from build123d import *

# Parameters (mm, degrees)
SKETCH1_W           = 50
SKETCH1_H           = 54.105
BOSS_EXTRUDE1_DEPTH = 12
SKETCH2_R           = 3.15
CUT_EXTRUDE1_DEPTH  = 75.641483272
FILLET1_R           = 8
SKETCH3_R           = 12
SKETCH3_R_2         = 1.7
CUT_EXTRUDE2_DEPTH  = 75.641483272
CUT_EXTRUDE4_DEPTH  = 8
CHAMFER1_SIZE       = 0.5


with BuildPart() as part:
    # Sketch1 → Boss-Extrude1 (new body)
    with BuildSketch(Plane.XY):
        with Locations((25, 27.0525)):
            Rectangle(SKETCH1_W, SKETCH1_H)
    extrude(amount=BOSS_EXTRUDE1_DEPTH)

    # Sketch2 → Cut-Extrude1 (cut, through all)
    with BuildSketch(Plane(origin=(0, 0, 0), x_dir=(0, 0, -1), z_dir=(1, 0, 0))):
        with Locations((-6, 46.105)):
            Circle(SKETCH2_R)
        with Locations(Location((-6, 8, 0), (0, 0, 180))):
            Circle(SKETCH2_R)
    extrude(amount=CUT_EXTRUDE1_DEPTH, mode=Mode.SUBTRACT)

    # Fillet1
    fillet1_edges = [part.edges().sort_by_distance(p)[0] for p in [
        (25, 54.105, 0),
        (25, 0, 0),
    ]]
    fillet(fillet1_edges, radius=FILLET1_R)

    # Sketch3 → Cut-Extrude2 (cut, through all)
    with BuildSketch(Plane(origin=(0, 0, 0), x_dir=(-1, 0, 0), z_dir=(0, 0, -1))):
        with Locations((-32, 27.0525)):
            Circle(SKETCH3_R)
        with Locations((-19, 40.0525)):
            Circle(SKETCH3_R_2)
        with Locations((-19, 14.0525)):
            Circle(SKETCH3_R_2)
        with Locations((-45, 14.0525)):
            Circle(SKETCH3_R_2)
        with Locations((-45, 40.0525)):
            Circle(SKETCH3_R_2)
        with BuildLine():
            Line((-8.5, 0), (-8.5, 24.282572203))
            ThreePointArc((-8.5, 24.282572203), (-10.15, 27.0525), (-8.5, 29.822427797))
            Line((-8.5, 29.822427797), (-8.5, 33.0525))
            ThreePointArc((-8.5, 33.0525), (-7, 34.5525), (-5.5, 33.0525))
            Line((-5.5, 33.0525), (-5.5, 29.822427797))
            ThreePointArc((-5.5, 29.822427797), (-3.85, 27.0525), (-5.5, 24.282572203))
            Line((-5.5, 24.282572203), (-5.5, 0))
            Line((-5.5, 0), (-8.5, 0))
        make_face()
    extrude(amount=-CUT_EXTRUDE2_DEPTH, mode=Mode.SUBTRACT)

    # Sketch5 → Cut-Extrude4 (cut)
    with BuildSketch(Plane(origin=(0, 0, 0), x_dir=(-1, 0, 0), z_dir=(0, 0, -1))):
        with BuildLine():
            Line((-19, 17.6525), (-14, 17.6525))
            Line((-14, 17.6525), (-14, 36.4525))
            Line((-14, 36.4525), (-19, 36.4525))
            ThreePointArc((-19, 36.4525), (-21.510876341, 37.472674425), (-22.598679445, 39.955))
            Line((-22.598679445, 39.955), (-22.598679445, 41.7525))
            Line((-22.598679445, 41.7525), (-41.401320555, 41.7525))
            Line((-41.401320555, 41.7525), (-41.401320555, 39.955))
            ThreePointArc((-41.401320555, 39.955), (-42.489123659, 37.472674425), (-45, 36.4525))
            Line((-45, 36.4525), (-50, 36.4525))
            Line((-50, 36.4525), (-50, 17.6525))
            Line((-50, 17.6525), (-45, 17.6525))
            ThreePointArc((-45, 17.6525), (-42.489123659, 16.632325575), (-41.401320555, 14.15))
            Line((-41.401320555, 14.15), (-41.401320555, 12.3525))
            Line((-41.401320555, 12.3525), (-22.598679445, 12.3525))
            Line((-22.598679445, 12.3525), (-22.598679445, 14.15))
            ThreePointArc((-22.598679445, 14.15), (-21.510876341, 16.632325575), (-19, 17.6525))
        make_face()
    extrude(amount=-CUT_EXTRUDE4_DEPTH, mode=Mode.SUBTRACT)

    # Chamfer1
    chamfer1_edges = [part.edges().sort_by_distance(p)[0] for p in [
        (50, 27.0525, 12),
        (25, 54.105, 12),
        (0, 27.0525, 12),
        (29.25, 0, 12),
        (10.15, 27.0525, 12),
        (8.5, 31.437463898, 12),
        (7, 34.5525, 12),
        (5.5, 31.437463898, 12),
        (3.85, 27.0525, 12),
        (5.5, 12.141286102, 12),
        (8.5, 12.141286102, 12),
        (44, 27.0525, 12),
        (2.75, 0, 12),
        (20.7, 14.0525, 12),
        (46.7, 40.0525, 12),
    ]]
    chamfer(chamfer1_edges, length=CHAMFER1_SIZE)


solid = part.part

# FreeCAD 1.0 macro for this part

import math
import FreeCAD as App
import Part
import Sketcher
Q = App.Units.Quantity


def edges_at(feature, points):
    """Names of the edges that pass closest to the given points."""
    edges = feature.Shape.Edges
    near = lambda p: min(range(len(edges)), key=lambda i: edges[i].distToShape(Part.Vertex(*p))[0])
    return sorted({f"Edge{near(p) + 1}" for p in points})

doc = App.newDocument("Part")
params = doc.addObject("Spreadsheet::Sheet", "Params")
for row, (alias, value) in enumerate([
    ("sketch1_width", "50 mm"),
    ("pad1_length", "12 mm"),
    ("sketch2_diameter", "6.3 mm"),
    ("fillet_radius", "8 mm"),
    ("sketch3_diameter", "24 mm"),
    ("sketch3_diameter2", "3.4 mm"),
    ("sketch3_radius", "1.5 mm"),
    ("sketch3_radius2", "3.15 mm"),
    ("sketch4_radius", "3.6 mm"),
    ("sketch4_width", "5 mm"),
    ("sketch4_height", "18.8 mm"),
    ("pocket3_length", "8 mm"),
    ("chamfer_size", "0.5 mm"),
], start=1):
    params.set(f"A{row}", alias)
    params.set(f"B{row}", "=" + value)
    params.setAlias(f"B{row}", alias)

body = doc.addObject("PartDesign::Body", "Body")

sketch1 = body.newObject("Sketcher::SketchObject", "Sketch")
sketch1.AttachmentSupport = (doc.getObject("XY_Plane"), [""])
sketch1.MapMode = "FlatFace"
sketch1.addGeometry([
    Part.LineSegment(App.Vector(0, 54.105, 0), App.Vector(0, 0, 0)),
    Part.LineSegment(App.Vector(0, 0, 0), App.Vector(50, 0, 0)),
    Part.LineSegment(App.Vector(50, 0, 0), App.Vector(50, 54.105, 0)),
    Part.LineSegment(App.Vector(50, 54.105, 0), App.Vector(0, 54.105, 0)),
], False)
sketch1.addConstraint([
    Sketcher.Constraint("Coincident", 0, 2, 1, 1),
    Sketcher.Constraint("Coincident", 1, 2, 2, 1),
    Sketcher.Constraint("Coincident", 2, 2, 3, 1),
    Sketcher.Constraint("Coincident", 3, 2, 0, 1),
    Sketcher.Constraint("Vertical", 0),
    Sketcher.Constraint("Horizontal", 1),
    Sketcher.Constraint("Vertical", 2),
    Sketcher.Constraint("Horizontal", 3),
    Sketcher.Constraint("Coincident", 0, 2, -1, 1),
    Sketcher.Constraint("DistanceX", 1, 1, 1, 2, Q("50 mm")),
    Sketcher.Constraint("DistanceY", 0, 2, 0, 1, Q("54.105 mm")),
])
sketch1.setExpression("Constraints[9]", "Params.sketch1_width")
pad1 = body.newObject("PartDesign::Pad", "Pad")
pad1.Profile = sketch1
pad1.setExpression("Length", "Params.pad1_length")

sketch2 = body.newObject("Sketcher::SketchObject", "Sketch001")
sketch2.AttachmentSupport = (doc.getObject("YZ_Plane"), [""])
sketch2.MapMode = "FlatFace"
sketch2.addGeometry([
    Part.Circle(App.Vector(46.105, 6, 0), App.Vector(0, 0, 1), 3.15),
    Part.Circle(App.Vector(8, 6, 0), App.Vector(0, 0, 1), 3.15),
], False)
sketch2.addConstraint([
    Sketcher.Constraint("Equal", 0, 1),
    Sketcher.Constraint("Horizontal", 0, 3, 1, 3),
    Sketcher.Constraint("Diameter", 0, Q("6.3 mm")),
    Sketcher.Constraint("DistanceY", -1, 1, 0, 3, Q("6 mm")),
    Sketcher.Constraint("DistanceX", -1, 1, 1, 3, Q("8 mm")),
    Sketcher.Constraint("DistanceX", -1, 1, 0, 3, Q("46.105 mm")),
])
sketch2.setExpression("Constraints[2]", "Params.sketch2_diameter")
pocket1 = body.newObject("PartDesign::Pocket", "Pocket")
pocket1.Profile = sketch2
pocket1.Type = "ThroughAll"
pocket1.Reversed = True
doc.recompute()

fillet = body.newObject("PartDesign::Fillet", "Fillet")
fillet.Base = (pocket1, edges_at(pocket1, [(25, 54.105, 0), (25, 0, 0)]))
fillet.setExpression("Radius", "Params.fillet_radius")

sketch3 = body.newObject("Sketcher::SketchObject", "Sketch002")
sketch3.AttachmentSupport = (doc.getObject("XY_Plane"), [""])
sketch3.MapMode = "FlatFace"
sketch3.addGeometry([
    Part.Circle(App.Vector(32, 27.0525, 0), App.Vector(0, 0, 1), 12),
    Part.Circle(App.Vector(19, 40.0525, 0), App.Vector(0, 0, 1), 1.7),
    Part.Circle(App.Vector(19, 14.0525, 0), App.Vector(0, 0, 1), 1.7),
    Part.Circle(App.Vector(45, 14.0525, 0), App.Vector(0, 0, 1), 1.7),
    Part.Circle(App.Vector(45, 40.0525, 0), App.Vector(0, 0, 1), 1.7),
    Part.LineSegment(App.Vector(8.5, 24.282572, 0), App.Vector(8.5, 0, 0)),
    Part.LineSegment(App.Vector(8.5, 0, 0), App.Vector(5.5, 0, 0)),
    Part.LineSegment(App.Vector(5.5, 0, 0), App.Vector(5.5, 24.282572, 0)),
    Part.ArcOfCircle(Part.Circle(App.Vector(7, 27.0525, 0), App.Vector(0, 0, 1), 3.15), math.radians(118.43689), math.radians(241.56311)),
    Part.LineSegment(App.Vector(5.5, 29.822428, 0), App.Vector(5.5, 33.0525, 0)),
    Part.ArcOfCircle(Part.Circle(App.Vector(7, 33.0525, 0), App.Vector(0, 0, 1), 1.5), math.radians(0), math.radians(180)),
    Part.LineSegment(App.Vector(8.5, 33.0525, 0), App.Vector(8.5, 29.822428, 0)),
    Part.ArcOfCircle(Part.Circle(App.Vector(7, 27.0525, 0), App.Vector(0, 0, 1), 3.15), math.radians(-61.56311), math.radians(61.56311)),
], False)
sketch3.addConstraint([
    Sketcher.Constraint("Coincident", 5, 2, 6, 1),
    Sketcher.Constraint("Coincident", 6, 2, 7, 1),
    Sketcher.Constraint("Coincident", 7, 2, 8, 2),
    Sketcher.Constraint("Coincident", 8, 1, 9, 1),
    Sketcher.Constraint("Tangent", 9, 2, 10, 2),
    Sketcher.Constraint("Tangent", 10, 1, 11, 1),
    Sketcher.Constraint("Coincident", 11, 2, 12, 2),
    Sketcher.Constraint("Coincident", 12, 1, 5, 1),
    Sketcher.Constraint("Vertical", 5),
    Sketcher.Constraint("Horizontal", 6),
    Sketcher.Constraint("Vertical", 7),
    Sketcher.Constraint("Vertical", 9),
    Sketcher.Constraint("Vertical", 11),
    Sketcher.Constraint("Coincident", 12, 3, 8, 3),
    Sketcher.Constraint("Equal", 1, 2),
    Sketcher.Constraint("Equal", 2, 3),
    Sketcher.Constraint("Equal", 3, 4),
    Sketcher.Constraint("Equal", 8, 12),
    Sketcher.Constraint("PointOnObject", 5, 2, -1),
    Sketcher.Constraint("Horizontal", 2, 3, 3, 3),
    Sketcher.Constraint("Horizontal", 1, 3, 4, 3),
    Sketcher.Constraint("Horizontal", 0, 3, 8, 3),
    Sketcher.Constraint("Horizontal", 8, 1, 11, 2),
    Sketcher.Constraint("Horizontal", 7, 2, 12, 1),
    Sketcher.Constraint("Vertical", 1, 3, 2, 3),
    Sketcher.Constraint("Vertical", 3, 3, 4, 3),
    Sketcher.Constraint("Vertical", 7, 2, 8, 1),
    Sketcher.Constraint("Diameter", 0, Q("24 mm")),
    Sketcher.Constraint("Diameter", 1, Q("3.4 mm")),
    Sketcher.Constraint("Radius", 10, Q("1.5 mm")),
    Sketcher.Constraint("Radius", 8, Q("3.15 mm")),
    Sketcher.Constraint("DistanceX", -1, 1, 0, 3, Q("32 mm")),
    Sketcher.Constraint("DistanceX", -1, 1, 1, 3, Q("19 mm")),
    Sketcher.Constraint("DistanceX", -1, 1, 3, 3, Q("45 mm")),
    Sketcher.Constraint("DistanceX", -1, 1, 8, 3, Q("7 mm")),
    Sketcher.Constraint("DistanceY", 0, 3, 1, 3, Q("13 mm")),
    Sketcher.Constraint("DistanceY", 2, 3, 0, 3, Q("13 mm")),
    Sketcher.Constraint("DistanceY", 8, 3, 10, 3, Q("6 mm")),
    Sketcher.Constraint("DistanceY", -1, 1, 0, 3, Q("27.0525 mm")),
])
sketch3.setExpression("Constraints[27]", "Params.sketch3_diameter")
sketch3.setExpression("Constraints[28]", "Params.sketch3_diameter2")
sketch3.setExpression("Constraints[29]", "Params.sketch3_radius")
sketch3.setExpression("Constraints[30]", "Params.sketch3_radius2")
pocket2 = body.newObject("PartDesign::Pocket", "Pocket001")
pocket2.Profile = sketch3
pocket2.Type = "ThroughAll"
pocket2.Reversed = True

sketch4 = body.newObject("Sketcher::SketchObject", "Sketch003")
sketch4.AttachmentSupport = (doc.getObject("XY_Plane"), [""])
sketch4.MapMode = "FlatFace"
sketch4.addGeometry([
    Part.LineSegment(App.Vector(19, 17.6525, 0), App.Vector(14, 17.6525, 0)),
    Part.LineSegment(App.Vector(14, 17.6525, 0), App.Vector(14, 36.4525, 0)),
    Part.LineSegment(App.Vector(14, 36.4525, 0), App.Vector(19, 36.4525, 0)),
    Part.ArcOfCircle(Part.Circle(App.Vector(19, 40.0525, 0), App.Vector(0, 0, 1), 3.6), math.radians(-90), math.radians(-1.55195)),
    Part.LineSegment(App.Vector(22.598679, 39.955, 0), App.Vector(22.598679, 41.7525, 0)),
    Part.LineSegment(App.Vector(22.598679, 41.7525, 0), App.Vector(41.401321, 41.7525, 0)),
    Part.LineSegment(App.Vector(41.401321, 41.7525, 0), App.Vector(41.401321, 39.955, 0)),
    Part.ArcOfCircle(Part.Circle(App.Vector(45, 40.0525, 0), App.Vector(0, 0, 1), 3.6), math.radians(-178.44805), math.radians(-90)),
    Part.LineSegment(App.Vector(45, 36.4525, 0), App.Vector(50, 36.4525, 0)),
    Part.LineSegment(App.Vector(50, 36.4525, 0), App.Vector(50, 17.6525, 0)),
    Part.LineSegment(App.Vector(50, 17.6525, 0), App.Vector(45, 17.6525, 0)),
    Part.ArcOfCircle(Part.Circle(App.Vector(45, 14.0525, 0), App.Vector(0, 0, 1), 3.6), math.radians(90), math.radians(178.44805)),
    Part.LineSegment(App.Vector(41.401321, 14.15, 0), App.Vector(41.401321, 12.3525, 0)),
    Part.LineSegment(App.Vector(41.401321, 12.3525, 0), App.Vector(22.598679, 12.3525, 0)),
    Part.LineSegment(App.Vector(22.598679, 12.3525, 0), App.Vector(22.598679, 14.15, 0)),
    Part.ArcOfCircle(Part.Circle(App.Vector(19, 14.0525, 0), App.Vector(0, 0, 1), 3.6), math.radians(1.55195), math.radians(90)),
], False)
sketch4.addConstraint([
    Sketcher.Constraint("Coincident", 0, 2, 1, 1),
    Sketcher.Constraint("Coincident", 1, 2, 2, 1),
    Sketcher.Constraint("Tangent", 2, 2, 3, 1),
    Sketcher.Constraint("Coincident", 3, 2, 4, 1),
    Sketcher.Constraint("Coincident", 4, 2, 5, 1),
    Sketcher.Constraint("Coincident", 5, 2, 6, 1),
    Sketcher.Constraint("Coincident", 6, 2, 7, 1),
    Sketcher.Constraint("Tangent", 7, 2, 8, 1),
    Sketcher.Constraint("Coincident", 8, 2, 9, 1),
    Sketcher.Constraint("Coincident", 9, 2, 10, 1),
    Sketcher.Constraint("Tangent", 10, 2, 11, 1),
    Sketcher.Constraint("Coincident", 11, 2, 12, 1),
    Sketcher.Constraint("Coincident", 12, 2, 13, 1),
    Sketcher.Constraint("Coincident", 13, 2, 14, 1),
    Sketcher.Constraint("Coincident", 14, 2, 15, 1),
    Sketcher.Constraint("Tangent", 15, 2, 0, 1),
    Sketcher.Constraint("Horizontal", 0),
    Sketcher.Constraint("Vertical", 1),
    Sketcher.Constraint("Horizontal", 2),
    Sketcher.Constraint("Vertical", 4),
    Sketcher.Constraint("Horizontal", 5),
    Sketcher.Constraint("Vertical", 6),
    Sketcher.Constraint("Horizontal", 8),
    Sketcher.Constraint("Vertical", 9),
    Sketcher.Constraint("Horizontal", 10),
    Sketcher.Constraint("Vertical", 12),
    Sketcher.Constraint("Horizontal", 13),
    Sketcher.Constraint("Vertical", 14),
    Sketcher.Constraint("Equal", 3, 7),
    Sketcher.Constraint("Equal", 7, 11),
    Sketcher.Constraint("Equal", 11, 15),
    Sketcher.Constraint("Horizontal", 3, 3, 7, 3),
    Sketcher.Constraint("Horizontal", 11, 3, 15, 3),
    Sketcher.Constraint("Horizontal", 3, 2, 6, 2),
    Sketcher.Constraint("Horizontal", 11, 2, 14, 2),
    Sketcher.Constraint("Vertical", 7, 3, 11, 3),
    Sketcher.Constraint("Vertical", 3, 3, 15, 3),
    Sketcher.Constraint("Vertical", 6, 2, 11, 2),
    Sketcher.Constraint("Equal", 2, 8),
    Sketcher.Constraint("Equal", 6, 12),
    Sketcher.Constraint("Radius", 3, Q("3.6 mm")),
    Sketcher.Constraint("DistanceX", 0, 2, 0, 1, Q("5 mm")),
    Sketcher.Constraint("DistanceY", 1, 1, 1, 2, Q("18.8 mm")),
    Sketcher.Constraint("DistanceX", -1, 1, 3, 3, Q("19 mm")),
    Sketcher.Constraint("DistanceX", -1, 1, 7, 3, Q("45 mm")),
    Sketcher.Constraint("DistanceY", 3, 3, 4, 2, Q("1.7 mm")),
    Sketcher.Constraint("DistanceY", -1, 1, 11, 2, Q("14.15 mm")),
    Sketcher.Constraint("DistanceY", 4, 1, 4, 2, Q("1.7975 mm")),
])
sketch4.setExpression("Constraints[40]", "Params.sketch4_radius")
sketch4.setExpression("Constraints[41]", "Params.sketch4_width")
sketch4.setExpression("Constraints[42]", "Params.sketch4_height")
pocket3 = body.newObject("PartDesign::Pocket", "Pocket002")
pocket3.Profile = sketch4
pocket3.setExpression("Length", "Params.pocket3_length")
pocket3.Reversed = True
doc.recompute()

chamfer = body.newObject("PartDesign::Chamfer", "Chamfer")
chamfer.Base = (pocket3, edges_at(pocket3, [
    (50, 27.052, 12),
    (25, 54.105, 12),
    (0, 27.052, 12),
    (29.25, 0, 12),
    (10.15, 27.052, 12),
    (8.5, 31.437, 12),
    (7, 34.553, 12),
    (5.5, 31.437, 12),
    (3.85, 27.052, 12),
    (5.5, 12.141, 12),
    (8.5, 12.141, 12),
    (44, 27.052, 12),
    (2.75, 0, 12),
    (20.7, 14.053, 12),
    (46.7, 40.053, 12),
]))
chamfer.setExpression("Size", "Params.chamfer_size")

doc.recompute()
